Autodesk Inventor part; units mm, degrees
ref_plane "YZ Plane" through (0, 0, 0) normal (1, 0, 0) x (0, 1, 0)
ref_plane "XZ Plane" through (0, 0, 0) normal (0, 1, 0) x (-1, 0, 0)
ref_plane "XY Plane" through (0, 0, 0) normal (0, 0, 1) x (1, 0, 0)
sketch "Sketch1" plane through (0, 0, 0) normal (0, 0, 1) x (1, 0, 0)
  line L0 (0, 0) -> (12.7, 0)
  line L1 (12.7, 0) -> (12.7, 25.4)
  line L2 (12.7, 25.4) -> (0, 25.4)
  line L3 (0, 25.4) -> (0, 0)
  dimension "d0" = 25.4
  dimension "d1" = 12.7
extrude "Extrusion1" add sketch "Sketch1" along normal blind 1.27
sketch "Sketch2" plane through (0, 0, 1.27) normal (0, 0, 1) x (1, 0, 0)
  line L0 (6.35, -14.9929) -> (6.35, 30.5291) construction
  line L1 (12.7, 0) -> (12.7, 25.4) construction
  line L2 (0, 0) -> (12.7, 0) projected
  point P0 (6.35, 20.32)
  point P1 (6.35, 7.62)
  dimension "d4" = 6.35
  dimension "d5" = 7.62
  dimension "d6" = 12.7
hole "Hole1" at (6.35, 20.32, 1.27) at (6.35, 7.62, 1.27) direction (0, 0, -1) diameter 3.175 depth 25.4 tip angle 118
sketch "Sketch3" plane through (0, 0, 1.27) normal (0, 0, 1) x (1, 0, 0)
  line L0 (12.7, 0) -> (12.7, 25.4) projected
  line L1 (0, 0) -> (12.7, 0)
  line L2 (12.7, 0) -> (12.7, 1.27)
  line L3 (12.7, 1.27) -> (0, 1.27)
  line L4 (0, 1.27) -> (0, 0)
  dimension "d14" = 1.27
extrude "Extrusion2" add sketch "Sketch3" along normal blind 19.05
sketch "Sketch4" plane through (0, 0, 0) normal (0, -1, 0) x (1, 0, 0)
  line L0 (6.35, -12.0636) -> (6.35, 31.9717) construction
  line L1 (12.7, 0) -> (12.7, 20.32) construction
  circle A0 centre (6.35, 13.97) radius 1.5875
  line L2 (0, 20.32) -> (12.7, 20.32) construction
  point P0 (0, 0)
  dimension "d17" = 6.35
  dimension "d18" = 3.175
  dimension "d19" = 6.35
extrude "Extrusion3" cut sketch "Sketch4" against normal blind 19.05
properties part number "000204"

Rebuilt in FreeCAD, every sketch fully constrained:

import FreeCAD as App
import Part
import Sketcher

V = App.Vector
Q = App.Units.Quantity

doc = App.newDocument("Part")
body = doc.addObject("PartDesign::Body", "Body")

# Sketch on XY plane
sketch1 = body.newObject("Sketcher::SketchObject", "Sketch")
sketch1.AttachmentSupport = (doc.getObject("XY_Plane"), [""])
sketch1.MapMode = "FlatFace"
sketch1.addGeometry([
    Part.LineSegment(V(0, 25, 0), V(0, 0, 0)),
    Part.LineSegment(V(0, 0, 0), V(13, 0, 0)),
    Part.LineSegment(V(13, 0, 0), V(13, 25, 0)),
    Part.LineSegment(V(13, 25, 0), V(0, 25, 0)),
], False)
sketch1.addConstraint([
    Sketcher.Constraint("Coincident", 0, 2, 1, 1),
    Sketcher.Constraint("Coincident", 1, 2, 2, 1),
    Sketcher.Constraint("Coincident", 2, 2, 3, 1),
    Sketcher.Constraint("Coincident", 3, 2, 0, 1),
    Sketcher.Constraint("Vertical", 0),
    Sketcher.Constraint("Horizontal", 1),
    Sketcher.Constraint("Vertical", 2),
    Sketcher.Constraint("Horizontal", 3),
    Sketcher.Constraint("Coincident", 0, 2, -1, 1),
    Sketcher.Constraint("DistanceY", 0, 2, 0, 1, Q("1 in")),
    Sketcher.Constraint("DistanceX", 1, 1, 1, 2, Q("0.5 in")),
])
pad1 = body.newObject("PartDesign::Pad", "Pad")
pad1.Profile = sketch1
pad1.Length = Q("0.05 in")

# Sketch on XY plane
sketch2 = body.newObject("Sketcher::SketchObject", "Sketch001")
sketch2.AttachmentSupport = (doc.getObject("XY_Plane"), [""])
sketch2.MapMode = "FlatFace"
sketch2.AttachmentOffset = App.Placement(V(0, 0, 0.05 * 25.4), App.Rotation())
sketch2.addGeometry([
    Part.Circle(V(6.3, 20.3, 0), V(0, 0, 1), 1.6),
    Part.Circle(V(6.3, 7.6, 0), V(0, 0, 1), 1.6),
], False)
sketch2.addConstraint([
    Sketcher.Constraint("Equal", 0, 1),
    Sketcher.Constraint("Vertical", 0, 3, 1, 3),
    Sketcher.Constraint("Diameter", 0, Q("0.125 in")),
    Sketcher.Constraint("DistanceY", -1, 1, 0, 3, Q("0.8 in")),
    Sketcher.Constraint("DistanceY", -1, 1, 1, 3, Q("0.3 in")),
    Sketcher.Constraint("DistanceX", -1, 1, 0, 3, Q("0.25 in")),
])
doc.recompute()
hole = body.newObject("PartDesign::Hole", "Hole")
hole.Profile = sketch2
hole.ThreadType = "None"
hole.Diameter = Q("0.125 in")
hole.DepthType = "Dimension"
hole.Depth = Q("1 in")
hole.DrillPoint = "Angled"
hole.DrillPointAngle = 118

# Sketch on XY plane
sketch3 = body.newObject("Sketcher::SketchObject", "Sketch002")
sketch3.AttachmentSupport = (doc.getObject("XY_Plane"), [""])
sketch3.MapMode = "FlatFace"
sketch3.AttachmentOffset = App.Placement(V(0, 0, 0.05 * 25.4), App.Rotation())
sketch3.addGeometry([
    Part.LineSegment(V(0, 0, 0), V(12.7, 0, 0)),
    Part.LineSegment(V(12.7, 0, 0), V(12.7, 1.3, 0)),
    Part.LineSegment(V(12.7, 1.3, 0), V(0, 1.3, 0)),
    Part.LineSegment(V(0, 1.3, 0), V(0, 0, 0)),
], False)
sketch3.addConstraint([
    Sketcher.Constraint("Coincident", 0, 2, 1, 1),
    Sketcher.Constraint("Coincident", 1, 2, 2, 1),
    Sketcher.Constraint("Coincident", 2, 2, 3, 1),
    Sketcher.Constraint("Coincident", 3, 2, 0, 1),
    Sketcher.Constraint("Horizontal", 0),
    Sketcher.Constraint("Vertical", 1),
    Sketcher.Constraint("Horizontal", 2),
    Sketcher.Constraint("Vertical", 3),
    Sketcher.Constraint("Coincident", 3, 2, -1, 1),
    Sketcher.Constraint("DistanceY", 1, 1, 1, 2, Q("0.05 in")),
    Sketcher.Constraint("DistanceX", 0, 1, 0, 2, Q("0.5 in")),
])
pad2 = body.newObject("PartDesign::Pad", "Pad001")
pad2.Profile = sketch3
pad2.Length = Q("0.75 in")

# Sketch on XZ plane
sketch4 = body.newObject("Sketcher::SketchObject", "Sketch003")
sketch4.AttachmentSupport = (doc.getObject("XZ_Plane"), [""])
sketch4.MapMode = "FlatFace"
sketch4.addGeometry(Part.Circle(V(6.3, 14, 0), V(0, 0, 1), 1.6), False)
sketch4.addConstraint([
    Sketcher.Constraint("Diameter", 0, Q("0.125 in")),
    Sketcher.Constraint("DistanceX", -1, 1, 0, 3, Q("0.25 in")),
    Sketcher.Constraint("DistanceY", -1, 1, 0, 3, Q("0.55 in")),
])
pocket1 = body.newObject("PartDesign::Pocket", "Pocket")
pocket1.Profile = sketch4
pocket1.Length = Q("0.75 in")

doc.recompute()
